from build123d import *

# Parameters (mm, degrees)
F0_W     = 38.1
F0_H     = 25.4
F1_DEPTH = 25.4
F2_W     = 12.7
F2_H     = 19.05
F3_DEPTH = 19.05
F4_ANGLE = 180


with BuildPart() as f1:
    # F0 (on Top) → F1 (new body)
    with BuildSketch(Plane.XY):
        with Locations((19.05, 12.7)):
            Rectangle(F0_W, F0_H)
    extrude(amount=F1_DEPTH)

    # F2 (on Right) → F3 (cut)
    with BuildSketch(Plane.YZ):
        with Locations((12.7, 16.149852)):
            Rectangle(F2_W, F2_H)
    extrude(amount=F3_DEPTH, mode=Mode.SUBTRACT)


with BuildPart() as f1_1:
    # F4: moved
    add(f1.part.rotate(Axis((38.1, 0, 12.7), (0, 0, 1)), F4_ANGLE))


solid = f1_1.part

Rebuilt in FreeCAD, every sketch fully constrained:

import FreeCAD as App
import Part
import Sketcher
Q = App.Units.Quantity


def add_polygon(sketch, points):
    """Adds a closed chain of lines whose ends are joined by coincident constraints."""
    first, n = sketch.GeometryCount, len(points)
    for a, b in zip(points, points[1:] + points[:1]):
        sketch.addGeometry(Part.LineSegment(App.Vector(*a, 0), App.Vector(*b, 0)), False)
    for i in range(n):
        sketch.addConstraint(Sketcher.Constraint("Coincident", first + i, 2, first + (i + 1) % n, 1))

doc = App.newDocument("Part")
body = doc.addObject("PartDesign::Body", "Body")

sketch1 = body.newObject("Sketcher::SketchObject", "Sketch")
sketch1.AttachmentSupport = (doc.getObject("XY_Plane"), [""])
sketch1.MapMode = "FlatFace"
add_polygon(sketch1, [(0, 25), (0, 0), (38, 0), (38, 25)])
sketch1.addConstraint([
    Sketcher.Constraint("Vertical", 0),
    Sketcher.Constraint("Horizontal", 1),
    Sketcher.Constraint("Vertical", 2),
    Sketcher.Constraint("Horizontal", 3),
    Sketcher.Constraint("Coincident", 0, 2, -1, 1),
    Sketcher.Constraint("DistanceY", 0, 2, 0, 1, Q("1 in")),
    Sketcher.Constraint("DistanceX", 1, 1, 1, 2, Q("1.5 in")),
])
pad1 = body.newObject("PartDesign::Pad", "Pad")
pad1.Profile = sketch1
pad1.Length = Q("1 in")

sketch2 = body.newObject("Sketcher::SketchObject", "Sketch001")
sketch2.AttachmentSupport = (doc.getObject("YZ_Plane"), [""])
sketch2.MapMode = "FlatFace"
add_polygon(sketch2, [(6, 26), (6, 7), (19, 7), (19, 26)])
sketch2.addConstraint([
    Sketcher.Constraint("Vertical", 0),
    Sketcher.Constraint("Horizontal", 1),
    Sketcher.Constraint("Vertical", 2),
    Sketcher.Constraint("Horizontal", 3),
    Sketcher.Constraint("DistanceX", 1, 1, 1, 2, Q("0.5 in")),
    Sketcher.Constraint("DistanceY", 0, 2, 0, 1, Q("0.75 in")),
    Sketcher.Constraint("DistanceX", -1, 1, 0, 2, Q("0.25 in")),
    Sketcher.Constraint("DistanceY", -1, 1, 0, 2, 6.624852),
])
pocket1 = body.newObject("PartDesign::Pocket", "Pocket")
pocket1.Profile = sketch2
pocket1.Length = Q("0.75 in")
pocket1.Reversed = True
body2 = doc.addObject("PartDesign::Body", "Body001")
doc.recompute()

body.Placement = App.Placement(App.Vector(76.2, 0, 0), App.Rotation(App.Vector(0, 0, 1), 180))
boolean = body2.newObject("PartDesign::Boolean", "Boolean")
boolean.Type = "Fuse"
boolean.addObjects([body])

doc.recompute()
